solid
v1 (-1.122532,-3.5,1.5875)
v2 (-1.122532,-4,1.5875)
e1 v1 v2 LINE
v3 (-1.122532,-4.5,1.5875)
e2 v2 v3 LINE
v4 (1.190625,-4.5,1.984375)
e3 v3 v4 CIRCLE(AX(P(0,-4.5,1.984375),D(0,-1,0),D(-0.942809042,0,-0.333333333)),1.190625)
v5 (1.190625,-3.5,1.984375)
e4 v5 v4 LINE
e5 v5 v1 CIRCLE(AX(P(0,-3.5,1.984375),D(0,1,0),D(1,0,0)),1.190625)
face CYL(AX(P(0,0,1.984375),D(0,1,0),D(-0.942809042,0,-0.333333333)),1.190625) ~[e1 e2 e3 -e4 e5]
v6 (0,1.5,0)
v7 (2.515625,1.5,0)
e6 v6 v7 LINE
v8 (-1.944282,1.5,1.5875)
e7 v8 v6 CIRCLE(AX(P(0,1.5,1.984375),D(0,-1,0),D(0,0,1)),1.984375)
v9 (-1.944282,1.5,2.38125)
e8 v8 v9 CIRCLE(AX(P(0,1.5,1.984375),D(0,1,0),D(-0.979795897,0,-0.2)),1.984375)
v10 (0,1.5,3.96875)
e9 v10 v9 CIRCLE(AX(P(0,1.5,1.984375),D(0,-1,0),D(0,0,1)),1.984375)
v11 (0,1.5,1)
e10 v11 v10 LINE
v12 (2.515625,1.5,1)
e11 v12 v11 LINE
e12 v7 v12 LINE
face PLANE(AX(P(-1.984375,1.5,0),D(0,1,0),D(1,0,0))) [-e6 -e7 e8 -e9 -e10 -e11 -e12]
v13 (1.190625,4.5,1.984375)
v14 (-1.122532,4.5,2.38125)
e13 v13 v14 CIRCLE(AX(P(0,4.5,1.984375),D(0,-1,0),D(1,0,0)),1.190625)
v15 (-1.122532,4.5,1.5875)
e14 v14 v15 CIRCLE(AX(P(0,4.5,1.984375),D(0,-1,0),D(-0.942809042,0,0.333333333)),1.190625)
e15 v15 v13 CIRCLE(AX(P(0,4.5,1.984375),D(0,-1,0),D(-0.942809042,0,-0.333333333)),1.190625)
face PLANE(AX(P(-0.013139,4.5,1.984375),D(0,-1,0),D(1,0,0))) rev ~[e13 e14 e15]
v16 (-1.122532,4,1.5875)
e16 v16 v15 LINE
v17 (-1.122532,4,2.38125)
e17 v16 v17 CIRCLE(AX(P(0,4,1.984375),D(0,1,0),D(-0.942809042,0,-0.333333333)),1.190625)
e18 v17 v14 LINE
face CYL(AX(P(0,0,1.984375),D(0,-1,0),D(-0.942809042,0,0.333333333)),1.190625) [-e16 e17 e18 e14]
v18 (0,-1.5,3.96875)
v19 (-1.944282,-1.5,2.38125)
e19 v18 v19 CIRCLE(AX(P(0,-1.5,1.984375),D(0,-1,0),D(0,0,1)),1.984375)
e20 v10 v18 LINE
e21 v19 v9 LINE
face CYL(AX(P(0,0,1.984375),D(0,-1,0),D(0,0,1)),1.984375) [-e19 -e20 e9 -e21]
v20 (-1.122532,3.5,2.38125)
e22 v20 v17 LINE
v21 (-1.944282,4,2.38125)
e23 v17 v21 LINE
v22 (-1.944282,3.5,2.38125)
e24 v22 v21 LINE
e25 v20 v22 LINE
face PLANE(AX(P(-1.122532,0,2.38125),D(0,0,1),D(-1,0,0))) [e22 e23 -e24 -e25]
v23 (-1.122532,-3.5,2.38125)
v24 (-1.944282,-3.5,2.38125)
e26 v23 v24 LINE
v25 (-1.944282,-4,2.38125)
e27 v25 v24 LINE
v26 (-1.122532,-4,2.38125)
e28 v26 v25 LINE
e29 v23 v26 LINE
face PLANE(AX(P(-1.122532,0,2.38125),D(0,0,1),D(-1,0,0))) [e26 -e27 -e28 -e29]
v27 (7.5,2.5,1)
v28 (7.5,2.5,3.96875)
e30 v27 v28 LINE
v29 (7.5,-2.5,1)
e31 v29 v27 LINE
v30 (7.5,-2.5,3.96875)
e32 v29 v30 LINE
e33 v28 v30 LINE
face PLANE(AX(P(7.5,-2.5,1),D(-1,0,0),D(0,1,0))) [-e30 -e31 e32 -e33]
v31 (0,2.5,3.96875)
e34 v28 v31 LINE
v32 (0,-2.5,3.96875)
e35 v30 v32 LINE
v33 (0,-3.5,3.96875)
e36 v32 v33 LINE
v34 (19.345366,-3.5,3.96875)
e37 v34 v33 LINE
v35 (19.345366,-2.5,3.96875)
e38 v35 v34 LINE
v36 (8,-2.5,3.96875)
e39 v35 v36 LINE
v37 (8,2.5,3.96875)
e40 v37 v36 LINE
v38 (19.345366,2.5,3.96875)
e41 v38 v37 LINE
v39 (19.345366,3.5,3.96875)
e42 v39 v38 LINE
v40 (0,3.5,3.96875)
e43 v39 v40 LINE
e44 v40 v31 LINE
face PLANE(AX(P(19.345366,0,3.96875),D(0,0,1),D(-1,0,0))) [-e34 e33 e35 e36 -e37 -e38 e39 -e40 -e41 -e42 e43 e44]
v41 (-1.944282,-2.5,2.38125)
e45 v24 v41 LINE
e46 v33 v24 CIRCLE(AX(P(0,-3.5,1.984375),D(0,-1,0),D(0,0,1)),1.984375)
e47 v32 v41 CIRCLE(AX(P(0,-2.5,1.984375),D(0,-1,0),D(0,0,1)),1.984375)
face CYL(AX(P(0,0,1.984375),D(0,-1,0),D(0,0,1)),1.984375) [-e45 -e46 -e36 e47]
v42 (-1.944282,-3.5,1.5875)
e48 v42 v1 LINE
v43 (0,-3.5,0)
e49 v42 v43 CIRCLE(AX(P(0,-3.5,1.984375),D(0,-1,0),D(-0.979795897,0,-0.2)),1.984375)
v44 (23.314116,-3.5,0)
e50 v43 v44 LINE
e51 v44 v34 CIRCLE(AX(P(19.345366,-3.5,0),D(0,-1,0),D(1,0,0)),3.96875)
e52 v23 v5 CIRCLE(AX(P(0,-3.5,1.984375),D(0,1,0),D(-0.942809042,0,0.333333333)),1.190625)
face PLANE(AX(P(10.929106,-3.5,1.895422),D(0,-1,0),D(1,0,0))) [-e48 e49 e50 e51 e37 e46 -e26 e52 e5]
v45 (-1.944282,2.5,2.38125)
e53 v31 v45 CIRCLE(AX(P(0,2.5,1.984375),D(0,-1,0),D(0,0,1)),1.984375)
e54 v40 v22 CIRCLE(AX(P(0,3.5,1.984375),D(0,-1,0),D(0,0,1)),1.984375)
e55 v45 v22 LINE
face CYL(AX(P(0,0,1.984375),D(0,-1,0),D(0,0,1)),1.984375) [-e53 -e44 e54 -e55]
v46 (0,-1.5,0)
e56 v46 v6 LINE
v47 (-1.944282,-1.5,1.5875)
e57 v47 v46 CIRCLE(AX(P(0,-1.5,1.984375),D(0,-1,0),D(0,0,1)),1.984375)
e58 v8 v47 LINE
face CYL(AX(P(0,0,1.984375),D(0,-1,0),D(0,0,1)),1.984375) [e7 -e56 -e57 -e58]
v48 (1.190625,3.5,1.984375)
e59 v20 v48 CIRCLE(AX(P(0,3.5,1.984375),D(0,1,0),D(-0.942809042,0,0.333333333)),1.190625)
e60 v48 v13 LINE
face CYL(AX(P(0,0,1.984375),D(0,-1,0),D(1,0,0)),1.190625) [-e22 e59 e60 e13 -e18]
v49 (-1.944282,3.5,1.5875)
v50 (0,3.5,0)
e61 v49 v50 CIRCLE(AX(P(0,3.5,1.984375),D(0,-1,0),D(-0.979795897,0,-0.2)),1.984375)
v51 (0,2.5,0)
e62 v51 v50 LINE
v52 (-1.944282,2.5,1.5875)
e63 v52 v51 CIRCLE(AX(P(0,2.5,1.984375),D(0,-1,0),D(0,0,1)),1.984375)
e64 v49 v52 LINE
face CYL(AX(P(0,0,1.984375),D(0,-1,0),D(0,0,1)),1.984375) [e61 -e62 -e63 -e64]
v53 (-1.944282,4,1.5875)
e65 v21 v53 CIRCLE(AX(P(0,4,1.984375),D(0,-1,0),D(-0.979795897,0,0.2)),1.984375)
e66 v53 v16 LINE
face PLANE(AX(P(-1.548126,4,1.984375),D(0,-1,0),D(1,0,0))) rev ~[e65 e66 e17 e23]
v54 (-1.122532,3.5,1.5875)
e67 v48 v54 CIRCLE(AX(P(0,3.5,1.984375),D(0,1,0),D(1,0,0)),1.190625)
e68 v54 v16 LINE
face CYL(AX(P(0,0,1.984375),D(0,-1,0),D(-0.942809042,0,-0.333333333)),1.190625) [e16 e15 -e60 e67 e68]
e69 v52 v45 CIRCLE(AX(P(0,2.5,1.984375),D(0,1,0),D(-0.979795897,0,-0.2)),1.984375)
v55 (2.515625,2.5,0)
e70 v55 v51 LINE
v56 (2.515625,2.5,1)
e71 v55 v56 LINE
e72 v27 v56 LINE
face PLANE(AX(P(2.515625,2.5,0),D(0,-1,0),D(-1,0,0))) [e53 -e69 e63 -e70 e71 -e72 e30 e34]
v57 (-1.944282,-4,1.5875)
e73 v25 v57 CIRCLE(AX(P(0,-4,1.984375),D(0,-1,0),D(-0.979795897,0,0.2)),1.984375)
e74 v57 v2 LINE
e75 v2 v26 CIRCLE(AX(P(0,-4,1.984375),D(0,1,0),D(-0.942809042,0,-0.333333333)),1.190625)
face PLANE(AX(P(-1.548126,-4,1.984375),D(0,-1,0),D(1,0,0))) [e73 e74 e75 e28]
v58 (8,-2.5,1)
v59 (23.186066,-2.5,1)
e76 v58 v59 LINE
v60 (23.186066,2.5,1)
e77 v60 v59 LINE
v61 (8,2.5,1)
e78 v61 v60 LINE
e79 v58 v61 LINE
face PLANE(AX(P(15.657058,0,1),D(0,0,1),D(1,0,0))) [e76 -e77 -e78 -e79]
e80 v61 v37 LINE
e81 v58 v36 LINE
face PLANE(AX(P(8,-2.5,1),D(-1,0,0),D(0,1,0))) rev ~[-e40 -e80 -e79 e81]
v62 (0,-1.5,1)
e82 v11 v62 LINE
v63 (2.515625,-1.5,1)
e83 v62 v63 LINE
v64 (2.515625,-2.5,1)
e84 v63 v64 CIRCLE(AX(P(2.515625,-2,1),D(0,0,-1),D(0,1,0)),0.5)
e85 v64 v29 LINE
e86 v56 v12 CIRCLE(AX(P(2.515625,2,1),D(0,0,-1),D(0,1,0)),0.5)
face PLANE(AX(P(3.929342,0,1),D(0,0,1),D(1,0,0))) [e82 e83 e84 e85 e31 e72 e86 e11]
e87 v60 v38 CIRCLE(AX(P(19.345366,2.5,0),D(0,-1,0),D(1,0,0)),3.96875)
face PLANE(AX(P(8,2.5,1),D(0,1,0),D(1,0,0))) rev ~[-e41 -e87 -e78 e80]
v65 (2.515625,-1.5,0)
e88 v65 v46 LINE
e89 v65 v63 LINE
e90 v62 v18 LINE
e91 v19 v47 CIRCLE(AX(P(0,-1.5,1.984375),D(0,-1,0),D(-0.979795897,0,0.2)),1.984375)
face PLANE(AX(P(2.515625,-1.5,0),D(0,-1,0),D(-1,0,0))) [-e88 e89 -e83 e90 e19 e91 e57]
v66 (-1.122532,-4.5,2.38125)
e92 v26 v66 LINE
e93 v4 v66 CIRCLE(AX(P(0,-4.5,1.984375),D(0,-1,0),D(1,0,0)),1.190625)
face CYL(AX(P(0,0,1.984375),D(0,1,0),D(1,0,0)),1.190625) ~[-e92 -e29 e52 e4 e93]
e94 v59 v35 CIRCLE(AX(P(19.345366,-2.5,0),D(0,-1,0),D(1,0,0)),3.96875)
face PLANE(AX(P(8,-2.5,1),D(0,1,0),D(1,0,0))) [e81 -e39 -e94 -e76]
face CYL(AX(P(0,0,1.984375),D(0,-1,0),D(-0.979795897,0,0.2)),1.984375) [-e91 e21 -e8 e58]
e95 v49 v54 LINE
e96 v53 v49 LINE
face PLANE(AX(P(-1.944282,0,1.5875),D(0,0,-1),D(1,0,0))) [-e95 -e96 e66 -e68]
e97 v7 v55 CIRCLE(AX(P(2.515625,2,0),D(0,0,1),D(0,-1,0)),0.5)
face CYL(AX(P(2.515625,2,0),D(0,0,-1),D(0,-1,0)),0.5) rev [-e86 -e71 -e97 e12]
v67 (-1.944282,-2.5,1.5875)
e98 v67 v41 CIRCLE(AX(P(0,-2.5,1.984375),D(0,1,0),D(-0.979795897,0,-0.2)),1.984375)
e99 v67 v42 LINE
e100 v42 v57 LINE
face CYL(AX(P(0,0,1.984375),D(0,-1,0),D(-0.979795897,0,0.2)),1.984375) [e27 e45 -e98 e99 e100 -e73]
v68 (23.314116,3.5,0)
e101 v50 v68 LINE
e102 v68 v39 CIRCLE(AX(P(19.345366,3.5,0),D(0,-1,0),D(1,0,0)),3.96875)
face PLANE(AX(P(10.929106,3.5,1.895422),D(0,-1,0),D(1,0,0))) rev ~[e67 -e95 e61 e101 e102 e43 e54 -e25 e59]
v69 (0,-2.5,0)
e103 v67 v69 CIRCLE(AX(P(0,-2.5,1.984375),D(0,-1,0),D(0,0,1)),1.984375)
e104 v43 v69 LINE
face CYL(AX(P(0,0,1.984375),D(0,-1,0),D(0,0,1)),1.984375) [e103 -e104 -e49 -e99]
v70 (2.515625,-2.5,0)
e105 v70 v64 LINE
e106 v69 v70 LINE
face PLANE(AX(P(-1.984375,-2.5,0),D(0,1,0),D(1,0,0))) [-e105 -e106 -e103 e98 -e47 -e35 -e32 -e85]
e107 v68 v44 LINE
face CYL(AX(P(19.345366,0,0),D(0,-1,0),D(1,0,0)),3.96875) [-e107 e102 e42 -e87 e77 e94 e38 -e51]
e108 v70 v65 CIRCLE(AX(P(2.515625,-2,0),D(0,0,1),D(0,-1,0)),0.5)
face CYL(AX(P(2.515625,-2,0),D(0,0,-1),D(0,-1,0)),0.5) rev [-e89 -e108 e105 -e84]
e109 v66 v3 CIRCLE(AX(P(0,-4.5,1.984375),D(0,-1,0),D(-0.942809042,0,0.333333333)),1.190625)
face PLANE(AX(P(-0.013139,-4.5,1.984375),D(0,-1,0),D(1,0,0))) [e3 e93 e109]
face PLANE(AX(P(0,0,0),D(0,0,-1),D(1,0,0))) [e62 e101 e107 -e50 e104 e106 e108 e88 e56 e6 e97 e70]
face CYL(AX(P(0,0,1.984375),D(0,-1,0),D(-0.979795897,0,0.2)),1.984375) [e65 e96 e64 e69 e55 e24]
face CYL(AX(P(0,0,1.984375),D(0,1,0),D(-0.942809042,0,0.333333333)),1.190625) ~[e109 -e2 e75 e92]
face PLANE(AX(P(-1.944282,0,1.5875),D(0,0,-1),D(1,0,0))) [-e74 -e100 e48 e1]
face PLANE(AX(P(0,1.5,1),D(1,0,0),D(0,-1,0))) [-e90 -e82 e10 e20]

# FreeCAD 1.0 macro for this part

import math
import FreeCAD as App
import Part
import Sketcher
Q = App.Units.Quantity


def add_polygon(sketch, points):
    """Adds a closed chain of lines whose ends are joined by coincident constraints."""
    first, n = sketch.GeometryCount, len(points)
    for a, b in zip(points, points[1:] + points[:1]):
        sketch.addGeometry(Part.LineSegment(App.Vector(*a, 0), App.Vector(*b, 0)), False)
    for i in range(n):
        sketch.addConstraint(Sketcher.Constraint("Coincident", first + i, 2, first + (i + 1) % n, 1))

doc = App.newDocument("Part")
body = doc.addObject("PartDesign::Body", "Body")

# Sketch on XZ plane
sketch1 = doc.addObject("Sketcher::SketchObject", "Sketch")
body.addObject(sketch1)
sketch1.AttachmentSupport = (doc.XZ_Plane, [""])
sketch1.MapMode = "FlatFace"
sketch1.addGeometry(Part.LineSegment(App.Vector(0, 0, 0), App.Vector(23.3, 0, 0)), False)
sketch1.addGeometry(Part.ArcOfCircle(Part.Circle(App.Vector(19.3, 0, 0), App.Vector(0, 0, 1), 4), math.radians(0), math.radians(90)), False)
sketch1.addGeometry(Part.LineSegment(App.Vector(19.3, 4, 0), App.Vector(0, 4, 0)), False)
sketch1.addGeometry(Part.ArcOfCircle(Part.Circle(App.Vector(0, 2, 0), App.Vector(0, 0, 1), 2), math.radians(90), math.radians(168)), False)
sketch1.addGeometry(Part.ArcOfCircle(Part.Circle(App.Vector(0, 2, 0), App.Vector(0, 0, 1), 2), math.radians(168), math.radians(192)), False)
sketch1.addGeometry(Part.ArcOfCircle(Part.Circle(App.Vector(0, 2, 0), App.Vector(0, 0, 1), 2), math.radians(-168), math.radians(-90)), False)
sketch1.addGeometry(Part.ArcOfCircle(Part.Circle(App.Vector(0, 2, 0), App.Vector(0, 0, 1), 1.2), math.radians(0), math.radians(161)), False)
sketch1.addGeometry(Part.ArcOfCircle(Part.Circle(App.Vector(0, 2, 0), App.Vector(0, 0, 1), 1.2), math.radians(-161), math.radians(0)), False)
sketch1.addGeometry(Part.ArcOfCircle(Part.Circle(App.Vector(0, 2, 0), App.Vector(0, 0, 1), 1.2), math.radians(161), math.radians(199)), False)
sketch1.addConstraint(Sketcher.Constraint("Coincident", 0, 2, 1, 1))
sketch1.addConstraint(Sketcher.Constraint("Tangent", 1, 2, 2, 1))
sketch1.addConstraint(Sketcher.Constraint("Tangent", 2, 2, 3, 1))
sketch1.addConstraint(Sketcher.Constraint("Tangent", 3, 2, 4, 1))
sketch1.addConstraint(Sketcher.Constraint("Tangent", 4, 2, 5, 1))
sketch1.addConstraint(Sketcher.Constraint("Tangent", 5, 2, 0, 1))
sketch1.addConstraint(Sketcher.Constraint("Tangent", 6, 1, 7, 2))
sketch1.addConstraint(Sketcher.Constraint("Tangent", 7, 1, 8, 2))
sketch1.addConstraint(Sketcher.Constraint("Tangent", 8, 1, 6, 2))
sketch1.addConstraint(Sketcher.Constraint("Horizontal", 0))
sketch1.addConstraint(Sketcher.Constraint("Horizontal", 2))
sketch1.addConstraint(Sketcher.Constraint("Coincident", 5, 2, -1, 1))
sketch1.addConstraint(Sketcher.Constraint("Coincident", 5, 3, 3, 3))
sketch1.addConstraint(Sketcher.Constraint("Coincident", 6, 3, 3, 3))
sketch1.addConstraint(Sketcher.Constraint("PointOnObject", 1, 3, -1))
sketch1.addConstraint(Sketcher.Constraint("Horizontal", 8, 3, 6, 1))
sketch1.addConstraint(Sketcher.Constraint("Horizontal", 4, 2, 7, 1))
sketch1.addConstraint(Sketcher.Constraint("Horizontal", 3, 2, 8, 1))
sketch1.addConstraint(Sketcher.Constraint("Vertical", 3, 2, 4, 2))
sketch1.addConstraint(Sketcher.Constraint("Radius", 1, Q("3.96875 mm")))
sketch1.addConstraint(Sketcher.Constraint("Radius", 6, Q("1.190625 mm")))
sketch1.addConstraint(Sketcher.Constraint("DistanceY", -1, 1, 4, 2, Q("1.5875 mm")))
sketch1.addConstraint(Sketcher.Constraint("DistanceX", 0, 1, 0, 2, Q("23.314116 mm")))
pad1 = doc.addObject("PartDesign::Pad", "Pad")
body.addObject(pad1)
pad1.Profile = sketch1
pad1.Length = 7
pad1.Midplane = True

# Sketch on XZ plane
sketch2 = doc.addObject("Sketcher::SketchObject", "Sketch001")
body.addObject(sketch2)
sketch2.AttachmentSupport = (doc.XZ_Plane, [""])
sketch2.MapMode = "FlatFace"
sketch2.addGeometry(Part.ArcOfCircle(Part.Circle(App.Vector(0, 2, 0), App.Vector(0, 0, 1), 1.2), math.radians(161), math.radians(199)), False)
sketch2.addGeometry(Part.ArcOfCircle(Part.Circle(App.Vector(0, 2, 0), App.Vector(0, 0, 1), 1.2), math.radians(-161), math.radians(0)), False)
sketch2.addGeometry(Part.ArcOfCircle(Part.Circle(App.Vector(0, 2, 0), App.Vector(0, 0, 1), 1.2), math.radians(0), math.radians(161)), False)
sketch2.addConstraint(Sketcher.Constraint("Tangent", 0, 2, 1, 1))
sketch2.addConstraint(Sketcher.Constraint("Tangent", 1, 2, 2, 1))
sketch2.addConstraint(Sketcher.Constraint("Tangent", 2, 2, 0, 1))
sketch2.addConstraint(Sketcher.Constraint("PointOnObject", 0, 3, -2))
sketch2.addConstraint(Sketcher.Constraint("Horizontal", 2, 3, 1, 2))
sketch2.addConstraint(Sketcher.Constraint("Vertical", 0, 2, 2, 2))
sketch2.addConstraint(Sketcher.Constraint("Radius", 0, Q("1.190625 mm")))
sketch2.addConstraint(Sketcher.Constraint("DistanceY", -1, 1, 0, 2, Q("1.5875 mm")))
sketch2.addConstraint(Sketcher.Constraint("DistanceY", -1, 1, 2, 2, Q("2.38125 mm")))
pad2 = doc.addObject("PartDesign::Pad", "Pad001")
body.addObject(pad2)
pad2.Profile = sketch2
pad2.Length = 9
pad2.Midplane = True

# Sketch on XZ plane
sketch3 = doc.addObject("Sketcher::SketchObject", "Sketch002")
body.addObject(sketch3)
sketch3.AttachmentSupport = (doc.XZ_Plane, [""])
sketch3.MapMode = "FlatFace"
sketch3.addGeometry(Part.ArcOfCircle(Part.Circle(App.Vector(0, 2, 0), App.Vector(0, 0, 1), 2), math.radians(168), math.radians(192)), False)
sketch3.addGeometry(Part.LineSegment(App.Vector(-1.9, 1.6, 0), App.Vector(-1.1, 1.6, 0)), False)
sketch3.addGeometry(Part.ArcOfCircle(Part.Circle(App.Vector(0, 2, 0), App.Vector(0, 0, 1), 1.2), math.radians(161), math.radians(199)), False)
sketch3.addGeometry(Part.LineSegment(App.Vector(-1.1, 2.4, 0), App.Vector(-1.9, 2.4, 0)), False)
sketch3.addConstraint(Sketcher.Constraint("Coincident", 0, 2, 1, 1))
sketch3.addConstraint(Sketcher.Constraint("Coincident", 1, 2, 2, 2))
sketch3.addConstraint(Sketcher.Constraint("Coincident", 2, 1, 3, 1))
sketch3.addConstraint(Sketcher.Constraint("Coincident", 3, 2, 0, 1))
sketch3.addConstraint(Sketcher.Constraint("Horizontal", 1))
sketch3.addConstraint(Sketcher.Constraint("Horizontal", 3))
sketch3.addConstraint(Sketcher.Constraint("Coincident", 2, 3, 0, 3))
sketch3.addConstraint(Sketcher.Constraint("PointOnObject", 0, 3, -2))
sketch3.addConstraint(Sketcher.Constraint("Vertical", 1, 2, 2, 1))
sketch3.addConstraint(Sketcher.Constraint("Radius", 0, Q("1.984375 mm")))
sketch3.addConstraint(Sketcher.Constraint("Radius", 2, Q("1.190625 mm")))
sketch3.addConstraint(Sketcher.Constraint("DistanceX", 1, 1, 1, 2, Q("0.82175 mm")))
sketch3.addConstraint(Sketcher.Constraint("DistanceY", -1, 1, 0, 2, Q("1.5875 mm")))
pad3 = doc.addObject("PartDesign::Pad", "Pad002")
body.addObject(pad3)
pad3.Profile = sketch3
pad3.Length = 8
pad3.Midplane = True

# Sketch on XY plane
sketch4 = doc.addObject("Sketcher::SketchObject", "Sketch003")
body.addObject(sketch4)
sketch4.AttachmentSupport = (doc.XY_Plane, [""])
sketch4.MapMode = "FlatFace"
sketch4.addGeometry(Part.LineSegment(App.Vector(-2, 2.5, 0), App.Vector(-2, 1.5, 0)), False)
sketch4.addGeometry(Part.LineSegment(App.Vector(-2, 1.5, 0), App.Vector(2.5, 1.5, 0)), False)
sketch4.addGeometry(Part.ArcOfCircle(Part.Circle(App.Vector(2.5, 2, 0), App.Vector(0, 0, 1), 0.5), math.radians(-90), math.radians(90)), False)
sketch4.addGeometry(Part.LineSegment(App.Vector(2.5, 2.5, 0), App.Vector(-2, 2.5, 0)), False)
sketch4.addGeometry(Part.LineSegment(App.Vector(-2, -1.5, 0), App.Vector(-2, -2.5, 0)), False)
sketch4.addGeometry(Part.LineSegment(App.Vector(-2, -2.5, 0), App.Vector(2.5, -2.5, 0)), False)
sketch4.addGeometry(Part.ArcOfCircle(Part.Circle(App.Vector(2.5, -2, 0), App.Vector(0, 0, 1), 0.5), math.radians(-90), math.radians(90)), False)
sketch4.addGeometry(Part.LineSegment(App.Vector(2.5, -1.5, 0), App.Vector(-2, -1.5, 0)), False)
sketch4.addConstraint(Sketcher.Constraint("Coincident", 0, 2, 1, 1))
sketch4.addConstraint(Sketcher.Constraint("Tangent", 1, 2, 2, 1))
sketch4.addConstraint(Sketcher.Constraint("Tangent", 2, 2, 3, 1))
sketch4.addConstraint(Sketcher.Constraint("Coincident", 3, 2, 0, 1))
sketch4.addConstraint(Sketcher.Constraint("Coincident", 4, 2, 5, 1))
sketch4.addConstraint(Sketcher.Constraint("Tangent", 5, 2, 6, 1))
sketch4.addConstraint(Sketcher.Constraint("Tangent", 6, 2, 7, 1))
sketch4.addConstraint(Sketcher.Constraint("Coincident", 7, 2, 4, 1))
sketch4.addConstraint(Sketcher.Constraint("Vertical", 0))
sketch4.addConstraint(Sketcher.Constraint("Horizontal", 1))
sketch4.addConstraint(Sketcher.Constraint("Horizontal", 3))
sketch4.addConstraint(Sketcher.Constraint("Vertical", 4))
sketch4.addConstraint(Sketcher.Constraint("Horizontal", 5))
sketch4.addConstraint(Sketcher.Constraint("Horizontal", 7))
sketch4.addConstraint(Sketcher.Constraint("Equal", 2, 6))
sketch4.addConstraint(Sketcher.Constraint("Symmetric", 2, 3, 6, 3, -1))
sketch4.addConstraint(Sketcher.Constraint("Vertical", 3, 2, 4, 2))
sketch4.addConstraint(Sketcher.Constraint("Radius", 2, Q("0.5 mm")))
sketch4.addConstraint(Sketcher.Constraint("DistanceX", 1, 1, 1, 2, Q("4.5 mm")))
sketch4.addConstraint(Sketcher.Constraint("DistanceY", -1, 1, 2, 3, Q("2 mm")))
sketch4.addConstraint(Sketcher.Constraint("DistanceX", -1, 1, 2, 3, Q("2.515625 mm")))
pocket1 = doc.addObject("PartDesign::Pocket", "Pocket")
body.addObject(pocket1)
pocket1.Profile = sketch4
pocket1.Length = 25
pocket1.Reversed = True

# Sketch on XY plane
sketch5 = doc.addObject("Sketcher::SketchObject", "Sketch004")
body.addObject(sketch5)
sketch5.AttachmentSupport = (doc.XY_Plane, [""])
sketch5.MapMode = "FlatFace"
sketch5.AttachmentOffset = App.Placement(App.Vector(0, 0, 1), App.Rotation())
sketch5.addGeometry(Part.ArcOfCircle(Part.Circle(App.Vector(2.5, -2, 0), App.Vector(0, 0, 1), 0.5), math.radians(-90), math.radians(90)), False)  # 0
sketch5.addGeometry(Part.LineSegment(App.Vector(2.5, -2.5, 0), App.Vector(7.5, -2.5, 0)), False)  # 1
sketch5.addGeometry(Part.LineSegment(App.Vector(7.5, -2.5, 0), App.Vector(7.5, 2.5, 0)), False)  # 2
sketch5.addGeometry(Part.LineSegment(App.Vector(7.5, 2.5, 0), App.Vector(2.5, 2.5, 0)), False)  # 3
sketch5.addGeometry(Part.ArcOfCircle(Part.Circle(App.Vector(2.5, 2, 0), App.Vector(0, 0, 1), 0.5), math.radians(-90), math.radians(90)), False)  # 4
sketch5.addGeometry(Part.LineSegment(App.Vector(2.5, 1.5, 0), App.Vector(0, 1.5, 0)), False)  # 5
sketch5.addGeometry(Part.LineSegment(App.Vector(0, 1.5, 0), App.Vector(0, -1.5, 0)), False)  # 6
sketch5.addGeometry(Part.LineSegment(App.Vector(0, -1.5, 0), App.Vector(2.5, -1.5, 0)), False)  # 7
add_polygon(sketch5, [(8, 2.5), (8, -2.5), (23.3, -2.5), (23.3, 2.5)])  # lines 8-11
sketch5.addConstraint(Sketcher.Constraint("Tangent", 0, 1, 1, 1))
sketch5.addConstraint(Sketcher.Constraint("Coincident", 1, 2, 2, 1))
sketch5.addConstraint(Sketcher.Constraint("Coincident", 2, 2, 3, 1))
sketch5.addConstraint(Sketcher.Constraint("Tangent", 3, 2, 4, 2))
sketch5.addConstraint(Sketcher.Constraint("Tangent", 4, 1, 5, 1))
sketch5.addConstraint(Sketcher.Constraint("Coincident", 5, 2, 6, 1))
sketch5.addConstraint(Sketcher.Constraint("Coincident", 6, 2, 7, 1))
sketch5.addConstraint(Sketcher.Constraint("Tangent", 7, 2, 0, 2))
sketch5.addConstraint(Sketcher.Constraint("Horizontal", 1))
sketch5.addConstraint(Sketcher.Constraint("Vertical", 2))
sketch5.addConstraint(Sketcher.Constraint("Horizontal", 3))
sketch5.addConstraint(Sketcher.Constraint("Horizontal", 5))
sketch5.addConstraint(Sketcher.Constraint("Vertical", 6))
sketch5.addConstraint(Sketcher.Constraint("Horizontal", 7))
sketch5.addConstraint(Sketcher.Constraint("Vertical", 8))
sketch5.addConstraint(Sketcher.Constraint("Horizontal", 9))
sketch5.addConstraint(Sketcher.Constraint("Vertical", 10))
sketch5.addConstraint(Sketcher.Constraint("Horizontal", 11))
sketch5.addConstraint(Sketcher.Constraint("Equal", 0, 4))
sketch5.addConstraint(Sketcher.Constraint("Symmetric", 5, 2, 6, 2, -1, 1))
sketch5.addConstraint(Sketcher.Constraint("Horizontal", 1, 2, 8, 2))
sketch5.addConstraint(Sketcher.Constraint("Horizontal", 3, 2, 10, 2))
sketch5.addConstraint(Sketcher.Constraint("Vertical", 0, 3, 4, 3))
sketch5.addConstraint(Sketcher.Constraint("Radius", 0, Q("0.5 mm")))
sketch5.addConstraint(Sketcher.Constraint("DistanceY", 2, 1, 2, 2, Q("5 mm")))
sketch5.addConstraint(Sketcher.Constraint("DistanceX", -1, 1, 8, 2, Q("8 mm")))
sketch5.addConstraint(Sketcher.Constraint("DistanceX", -1, 1, 1, 2, Q("7.5 mm")))
sketch5.addConstraint(Sketcher.Constraint("DistanceX", 1, 1, 1, 2, Q("4.984375 mm")))
sketch5.addConstraint(Sketcher.Constraint("DistanceX", 9, 1, 9, 2, Q("15.314116 mm")))
pocket2 = doc.addObject("PartDesign::Pocket", "Pocket001")
body.addObject(pocket2)
pocket2.Profile = sketch5
pocket2.Length = 2.96975
pocket2.Reversed = True

doc.recompute()
